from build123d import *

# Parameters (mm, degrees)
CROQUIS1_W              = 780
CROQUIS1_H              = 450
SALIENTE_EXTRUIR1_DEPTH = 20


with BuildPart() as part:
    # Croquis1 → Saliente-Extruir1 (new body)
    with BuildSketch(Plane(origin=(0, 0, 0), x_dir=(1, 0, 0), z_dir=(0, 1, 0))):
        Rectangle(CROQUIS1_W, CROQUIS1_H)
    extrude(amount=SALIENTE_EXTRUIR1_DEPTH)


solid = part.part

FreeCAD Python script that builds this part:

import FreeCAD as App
import Part
import Sketcher
from FreeCAD import Vector
Q = App.Units.Quantity

doc = App.newDocument("Part")
params = doc.addObject("Spreadsheet::Sheet", "Params")
for row, (alias, value) in enumerate([
    ("sketch1_width", "780 mm"),
    ("sketch1_height", "450 mm"),
    ("pad1_length", "20 mm"),
], start=1):
    params.set(f"A{row}", alias)
    params.set(f"B{row}", "=" + value)
    params.setAlias(f"B{row}", alias)

body = doc.addObject("PartDesign::Body", "Body")

# Sketch on XZ plane
sketch1 = doc.addObject("Sketcher::SketchObject", "Sketch")
body.addObject(sketch1)
sketch1.AttachmentSupport = (doc.XZ_Plane, [""])
sketch1.MapMode = "FlatFace"
sketch1.addGeometry(Part.LineSegment(Vector(-390, -225, 0), Vector(-390, 225, 0)), False)
sketch1.addGeometry(Part.LineSegment(Vector(-390, 225, 0), Vector(390, 225, 0)), False)
sketch1.addGeometry(Part.LineSegment(Vector(390, 225, 0), Vector(390, -225, 0)), False)
sketch1.addGeometry(Part.LineSegment(Vector(390, -225, 0), Vector(-390, -225, 0)), False)
sketch1.addConstraint(Sketcher.Constraint("Coincident", 0, 2, 1, 1))
sketch1.addConstraint(Sketcher.Constraint("Coincident", 1, 2, 2, 1))
sketch1.addConstraint(Sketcher.Constraint("Coincident", 2, 2, 3, 1))
sketch1.addConstraint(Sketcher.Constraint("Coincident", 3, 2, 0, 1))
sketch1.addConstraint(Sketcher.Constraint("Vertical", 0))
sketch1.addConstraint(Sketcher.Constraint("Horizontal", 1))
sketch1.addConstraint(Sketcher.Constraint("Vertical", 2))
sketch1.addConstraint(Sketcher.Constraint("Horizontal", 3))
sketch1.addConstraint(Sketcher.Constraint("Symmetric", 0, 2, 2, 2, -1, 1))
sketch1.addConstraint(Sketcher.Constraint("DistanceX", 1, 1, 1, 2, Q("780 mm")))
sketch1.addConstraint(Sketcher.Constraint("DistanceY", 0, 1, 0, 2, Q("450 mm")))
sketch1.setExpression("Constraints[9]", "Params.sketch1_width")
sketch1.setExpression("Constraints[10]", "Params.sketch1_height")
pad1 = doc.addObject("PartDesign::Pad", "Pad")
body.addObject(pad1)
pad1.Profile = sketch1
pad1.setExpression("Length", "Params.pad1_length")
pad1.Reversed = True

doc.recompute()
